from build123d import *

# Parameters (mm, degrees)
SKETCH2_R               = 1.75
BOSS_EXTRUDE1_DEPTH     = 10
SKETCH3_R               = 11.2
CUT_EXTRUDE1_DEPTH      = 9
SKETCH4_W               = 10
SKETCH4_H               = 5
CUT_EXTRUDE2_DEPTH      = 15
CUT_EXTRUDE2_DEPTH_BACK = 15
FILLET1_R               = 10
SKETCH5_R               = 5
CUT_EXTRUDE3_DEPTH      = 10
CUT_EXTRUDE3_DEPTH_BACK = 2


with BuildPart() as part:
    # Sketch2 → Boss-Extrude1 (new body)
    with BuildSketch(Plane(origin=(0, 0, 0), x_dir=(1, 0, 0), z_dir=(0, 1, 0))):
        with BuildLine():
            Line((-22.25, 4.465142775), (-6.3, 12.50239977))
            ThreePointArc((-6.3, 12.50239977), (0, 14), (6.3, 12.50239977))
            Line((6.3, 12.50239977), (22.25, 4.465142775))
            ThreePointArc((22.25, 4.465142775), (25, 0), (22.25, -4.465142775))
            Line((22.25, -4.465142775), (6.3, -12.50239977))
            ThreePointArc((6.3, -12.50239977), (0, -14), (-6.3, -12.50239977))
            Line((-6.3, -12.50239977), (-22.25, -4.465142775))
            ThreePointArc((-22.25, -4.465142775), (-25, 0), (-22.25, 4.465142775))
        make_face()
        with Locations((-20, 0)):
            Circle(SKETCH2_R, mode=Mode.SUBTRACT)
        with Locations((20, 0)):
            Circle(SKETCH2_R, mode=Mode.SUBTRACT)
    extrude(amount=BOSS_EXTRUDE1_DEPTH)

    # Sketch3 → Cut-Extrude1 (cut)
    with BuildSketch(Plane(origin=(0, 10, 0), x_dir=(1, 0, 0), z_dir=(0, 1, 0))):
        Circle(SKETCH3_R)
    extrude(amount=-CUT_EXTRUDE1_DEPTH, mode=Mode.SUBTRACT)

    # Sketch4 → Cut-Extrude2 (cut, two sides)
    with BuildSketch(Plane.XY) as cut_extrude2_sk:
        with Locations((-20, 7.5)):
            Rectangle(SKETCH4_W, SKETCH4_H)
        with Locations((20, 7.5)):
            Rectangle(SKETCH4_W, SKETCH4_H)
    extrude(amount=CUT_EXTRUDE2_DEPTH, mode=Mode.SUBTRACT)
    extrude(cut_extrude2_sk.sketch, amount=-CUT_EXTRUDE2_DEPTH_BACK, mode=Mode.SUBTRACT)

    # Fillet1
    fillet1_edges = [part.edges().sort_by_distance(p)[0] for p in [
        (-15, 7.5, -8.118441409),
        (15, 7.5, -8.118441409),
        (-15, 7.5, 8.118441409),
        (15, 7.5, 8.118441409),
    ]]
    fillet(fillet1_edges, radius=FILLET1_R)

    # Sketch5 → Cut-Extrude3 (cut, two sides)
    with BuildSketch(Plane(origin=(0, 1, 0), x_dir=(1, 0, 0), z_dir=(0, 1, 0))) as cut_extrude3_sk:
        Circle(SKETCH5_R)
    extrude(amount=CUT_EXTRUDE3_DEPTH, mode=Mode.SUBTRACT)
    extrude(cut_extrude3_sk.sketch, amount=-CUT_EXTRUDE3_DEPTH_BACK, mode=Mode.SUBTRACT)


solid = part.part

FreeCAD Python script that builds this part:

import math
import FreeCAD as App
import Part
import Sketcher

V = App.Vector
Q = App.Units.Quantity


def edges_at(feature, points):
    """Names of the edges that pass closest to the given points."""
    edges = feature.Shape.Edges
    near = lambda p: min(range(len(edges)), key=lambda i: edges[i].distToShape(Part.Vertex(*p))[0])
    return sorted({f"Edge{near(p) + 1}" for p in points})

doc = App.newDocument("Part")
body = doc.addObject("PartDesign::Body", "Body")

# Sketch on XZ plane
sketch1 = body.newObject("Sketcher::SketchObject", "Sketch")
sketch1.AttachmentSupport = (doc.getObject("XZ_Plane"), [""])
sketch1.MapMode = "FlatFace"
sketch1.addGeometry([
    Part.LineSegment(V(-6.3, -12.5, 0), V(-22.2, -4.5, 0)),  # 0
    Part.ArcOfCircle(Part.Circle(V(-20, 0, 0), V(0, 0, 1), 5), math.radians(117), math.radians(243)),  # 1
    Part.LineSegment(V(-22.2, 4.5, 0), V(-6.3, 12.5, 0)),  # 2
    Part.ArcOfCircle(Part.Circle(V(0, 0, 0), V(0, 0, 1), 14), math.radians(63), math.radians(117)),  # 3
    Part.LineSegment(V(6.3, 12.5, 0), V(22.2, 4.5, 0)),  # 4
    Part.ArcOfCircle(Part.Circle(V(20, 0, 0), V(0, 0, 1), 5), math.radians(-63), math.radians(63)),  # 5
    Part.LineSegment(V(22.2, -4.5, 0), V(6.3, -12.5, 0)),  # 6
    Part.ArcOfCircle(Part.Circle(V(0, 0, 0), V(0, 0, 1), 14), math.radians(-117), math.radians(-63)),  # 7
    Part.Circle(V(20, 0, 0), V(0, 0, 1), 1.8),  # 8
    Part.Circle(V(-20, 0, 0), V(0, 0, 1), 1.8),  # 9
], False)
sketch1.addConstraint([
    Sketcher.Constraint("Tangent", 0, 2, 1, 2),
    Sketcher.Constraint("Tangent", 1, 1, 2, 1),
    Sketcher.Constraint("Tangent", 2, 2, 3, 2),
    Sketcher.Constraint("Tangent", 3, 1, 4, 1),
    Sketcher.Constraint("Tangent", 4, 2, 5, 2),
    Sketcher.Constraint("Tangent", 5, 1, 6, 1),
    Sketcher.Constraint("Tangent", 6, 2, 7, 2),
    Sketcher.Constraint("Tangent", 7, 1, 0, 1),
    Sketcher.Constraint("Coincident", 3, 3, -1, 1),
    Sketcher.Constraint("Coincident", 7, 3, -1, 1),
    Sketcher.Constraint("Coincident", 8, 3, 5, 3),
    Sketcher.Constraint("Coincident", 9, 3, 1, 3),
    Sketcher.Constraint("Equal", 1, 5),
    Sketcher.Constraint("Equal", 3, 7),
    Sketcher.Constraint("Equal", 8, 9),
    Sketcher.Constraint("Symmetric", 1, 3, 5, 3, -1, 1),
    Sketcher.Constraint("PointOnObject", 1, 3, -1),
    Sketcher.Constraint("Radius", 1, Q("5 mm")),
    Sketcher.Constraint("Radius", 3, Q("14 mm")),
    Sketcher.Constraint("Diameter", 8, Q("3.5 mm")),
    Sketcher.Constraint("DistanceX", 1, 3, -1, 1, Q("20 mm")),
])
pad1 = body.newObject("PartDesign::Pad", "Pad")
pad1.Profile = sketch1
pad1.Length = 10
pad1.Reversed = True

# Sketch on XZ plane
sketch2 = body.newObject("Sketcher::SketchObject", "Sketch001")
sketch2.AttachmentSupport = (doc.getObject("XZ_Plane"), [""])
sketch2.MapMode = "FlatFace"
sketch2.AttachmentOffset = App.Placement(V(0, 0, -10), App.Rotation())
sketch2.addGeometry(Part.Circle(V(0, 0, 0), V(0, 0, 1), 11), False)
sketch2.addConstraint([
    Sketcher.Constraint("Coincident", 0, 3, -1, 1),
    Sketcher.Constraint("Diameter", 0, Q("22.4 mm")),
])
pocket1 = body.newObject("PartDesign::Pocket", "Pocket")
pocket1.Profile = sketch2
pocket1.Length = 9
pocket1.Reversed = True

# Sketch on XY plane
sketch3 = body.newObject("Sketcher::SketchObject", "Sketch002")
sketch3.AttachmentSupport = (doc.getObject("XY_Plane"), [""])
sketch3.MapMode = "FlatFace"
sketch3.addGeometry([
    Part.LineSegment(V(-25, 10, 0), V(-25, 5, 0)),  # 0
    Part.LineSegment(V(-25, 5, 0), V(-15, 5, 0)),  # 1
    Part.LineSegment(V(-15, 5, 0), V(-15, 10, 0)),  # 2
    Part.LineSegment(V(-15, 10, 0), V(-25, 10, 0)),  # 3
    Part.LineSegment(V(15, 10, 0), V(15, 5, 0)),  # 4
    Part.LineSegment(V(15, 5, 0), V(25, 5, 0)),  # 5
    Part.LineSegment(V(25, 5, 0), V(25, 10, 0)),  # 6
    Part.LineSegment(V(25, 10, 0), V(15, 10, 0)),  # 7
], False)
sketch3.addConstraint([
    Sketcher.Constraint("Coincident", 0, 2, 1, 1),
    Sketcher.Constraint("Coincident", 1, 2, 2, 1),
    Sketcher.Constraint("Coincident", 2, 2, 3, 1),
    Sketcher.Constraint("Coincident", 3, 2, 0, 1),
    Sketcher.Constraint("Coincident", 4, 2, 5, 1),
    Sketcher.Constraint("Coincident", 5, 2, 6, 1),
    Sketcher.Constraint("Coincident", 6, 2, 7, 1),
    Sketcher.Constraint("Coincident", 7, 2, 4, 1),
    Sketcher.Constraint("Vertical", 0),
    Sketcher.Constraint("Horizontal", 1),
    Sketcher.Constraint("Vertical", 2),
    Sketcher.Constraint("Horizontal", 3),
    Sketcher.Constraint("Vertical", 4),
    Sketcher.Constraint("Horizontal", 5),
    Sketcher.Constraint("Vertical", 6),
    Sketcher.Constraint("Horizontal", 7),
    Sketcher.Constraint("Symmetric", 1, 2, 4, 2, -2),
    Sketcher.Constraint("Symmetric", 3, 2, 6, 2, -2),
    Sketcher.Constraint("DistanceX", 1, 1, 1, 2, Q("10 mm")),
    Sketcher.Constraint("DistanceY", 0, 2, 0, 1, Q("5 mm")),
    Sketcher.Constraint("DistanceX", 0, 2, -1, 1, Q("25 mm")),
    Sketcher.Constraint("DistanceY", -1, 1, 0, 2, Q("5 mm")),
])
pocket2 = body.newObject("PartDesign::Pocket", "Pocket001")
pocket2.Profile = sketch3
pocket2.Type = "ThroughAll"
pocket2.Midplane = True
doc.recompute()

fillet = body.newObject("PartDesign::Fillet", "Fillet")
fillet.Base = (pocket2, edges_at(pocket2, [
    (-15, 7.5, -8.118),
    (15, 7.5, -8.118),
    (-15, 7.5, 8.118),
    (15, 7.5, 8.118),
]))
fillet.Radius = 10

# Sketch on XZ plane
sketch4 = body.newObject("Sketcher::SketchObject", "Sketch003")
sketch4.AttachmentSupport = (doc.getObject("XZ_Plane"), [""])
sketch4.MapMode = "FlatFace"
sketch4.AttachmentOffset = App.Placement(V(0, 0, -1), App.Rotation())
sketch4.addGeometry(Part.Circle(V(0, 0, 0), V(0, 0, 1), 5), False)
sketch4.addConstraint([
    Sketcher.Constraint("Coincident", 0, 3, -1, 1),
    Sketcher.Constraint("Diameter", 0, Q("10 mm")),
])
pocket3 = body.newObject("PartDesign::Pocket", "Pocket002")
pocket3.Profile = sketch4
pocket3.Type = "ThroughAll"
pocket3.Midplane = True

doc.recompute()
